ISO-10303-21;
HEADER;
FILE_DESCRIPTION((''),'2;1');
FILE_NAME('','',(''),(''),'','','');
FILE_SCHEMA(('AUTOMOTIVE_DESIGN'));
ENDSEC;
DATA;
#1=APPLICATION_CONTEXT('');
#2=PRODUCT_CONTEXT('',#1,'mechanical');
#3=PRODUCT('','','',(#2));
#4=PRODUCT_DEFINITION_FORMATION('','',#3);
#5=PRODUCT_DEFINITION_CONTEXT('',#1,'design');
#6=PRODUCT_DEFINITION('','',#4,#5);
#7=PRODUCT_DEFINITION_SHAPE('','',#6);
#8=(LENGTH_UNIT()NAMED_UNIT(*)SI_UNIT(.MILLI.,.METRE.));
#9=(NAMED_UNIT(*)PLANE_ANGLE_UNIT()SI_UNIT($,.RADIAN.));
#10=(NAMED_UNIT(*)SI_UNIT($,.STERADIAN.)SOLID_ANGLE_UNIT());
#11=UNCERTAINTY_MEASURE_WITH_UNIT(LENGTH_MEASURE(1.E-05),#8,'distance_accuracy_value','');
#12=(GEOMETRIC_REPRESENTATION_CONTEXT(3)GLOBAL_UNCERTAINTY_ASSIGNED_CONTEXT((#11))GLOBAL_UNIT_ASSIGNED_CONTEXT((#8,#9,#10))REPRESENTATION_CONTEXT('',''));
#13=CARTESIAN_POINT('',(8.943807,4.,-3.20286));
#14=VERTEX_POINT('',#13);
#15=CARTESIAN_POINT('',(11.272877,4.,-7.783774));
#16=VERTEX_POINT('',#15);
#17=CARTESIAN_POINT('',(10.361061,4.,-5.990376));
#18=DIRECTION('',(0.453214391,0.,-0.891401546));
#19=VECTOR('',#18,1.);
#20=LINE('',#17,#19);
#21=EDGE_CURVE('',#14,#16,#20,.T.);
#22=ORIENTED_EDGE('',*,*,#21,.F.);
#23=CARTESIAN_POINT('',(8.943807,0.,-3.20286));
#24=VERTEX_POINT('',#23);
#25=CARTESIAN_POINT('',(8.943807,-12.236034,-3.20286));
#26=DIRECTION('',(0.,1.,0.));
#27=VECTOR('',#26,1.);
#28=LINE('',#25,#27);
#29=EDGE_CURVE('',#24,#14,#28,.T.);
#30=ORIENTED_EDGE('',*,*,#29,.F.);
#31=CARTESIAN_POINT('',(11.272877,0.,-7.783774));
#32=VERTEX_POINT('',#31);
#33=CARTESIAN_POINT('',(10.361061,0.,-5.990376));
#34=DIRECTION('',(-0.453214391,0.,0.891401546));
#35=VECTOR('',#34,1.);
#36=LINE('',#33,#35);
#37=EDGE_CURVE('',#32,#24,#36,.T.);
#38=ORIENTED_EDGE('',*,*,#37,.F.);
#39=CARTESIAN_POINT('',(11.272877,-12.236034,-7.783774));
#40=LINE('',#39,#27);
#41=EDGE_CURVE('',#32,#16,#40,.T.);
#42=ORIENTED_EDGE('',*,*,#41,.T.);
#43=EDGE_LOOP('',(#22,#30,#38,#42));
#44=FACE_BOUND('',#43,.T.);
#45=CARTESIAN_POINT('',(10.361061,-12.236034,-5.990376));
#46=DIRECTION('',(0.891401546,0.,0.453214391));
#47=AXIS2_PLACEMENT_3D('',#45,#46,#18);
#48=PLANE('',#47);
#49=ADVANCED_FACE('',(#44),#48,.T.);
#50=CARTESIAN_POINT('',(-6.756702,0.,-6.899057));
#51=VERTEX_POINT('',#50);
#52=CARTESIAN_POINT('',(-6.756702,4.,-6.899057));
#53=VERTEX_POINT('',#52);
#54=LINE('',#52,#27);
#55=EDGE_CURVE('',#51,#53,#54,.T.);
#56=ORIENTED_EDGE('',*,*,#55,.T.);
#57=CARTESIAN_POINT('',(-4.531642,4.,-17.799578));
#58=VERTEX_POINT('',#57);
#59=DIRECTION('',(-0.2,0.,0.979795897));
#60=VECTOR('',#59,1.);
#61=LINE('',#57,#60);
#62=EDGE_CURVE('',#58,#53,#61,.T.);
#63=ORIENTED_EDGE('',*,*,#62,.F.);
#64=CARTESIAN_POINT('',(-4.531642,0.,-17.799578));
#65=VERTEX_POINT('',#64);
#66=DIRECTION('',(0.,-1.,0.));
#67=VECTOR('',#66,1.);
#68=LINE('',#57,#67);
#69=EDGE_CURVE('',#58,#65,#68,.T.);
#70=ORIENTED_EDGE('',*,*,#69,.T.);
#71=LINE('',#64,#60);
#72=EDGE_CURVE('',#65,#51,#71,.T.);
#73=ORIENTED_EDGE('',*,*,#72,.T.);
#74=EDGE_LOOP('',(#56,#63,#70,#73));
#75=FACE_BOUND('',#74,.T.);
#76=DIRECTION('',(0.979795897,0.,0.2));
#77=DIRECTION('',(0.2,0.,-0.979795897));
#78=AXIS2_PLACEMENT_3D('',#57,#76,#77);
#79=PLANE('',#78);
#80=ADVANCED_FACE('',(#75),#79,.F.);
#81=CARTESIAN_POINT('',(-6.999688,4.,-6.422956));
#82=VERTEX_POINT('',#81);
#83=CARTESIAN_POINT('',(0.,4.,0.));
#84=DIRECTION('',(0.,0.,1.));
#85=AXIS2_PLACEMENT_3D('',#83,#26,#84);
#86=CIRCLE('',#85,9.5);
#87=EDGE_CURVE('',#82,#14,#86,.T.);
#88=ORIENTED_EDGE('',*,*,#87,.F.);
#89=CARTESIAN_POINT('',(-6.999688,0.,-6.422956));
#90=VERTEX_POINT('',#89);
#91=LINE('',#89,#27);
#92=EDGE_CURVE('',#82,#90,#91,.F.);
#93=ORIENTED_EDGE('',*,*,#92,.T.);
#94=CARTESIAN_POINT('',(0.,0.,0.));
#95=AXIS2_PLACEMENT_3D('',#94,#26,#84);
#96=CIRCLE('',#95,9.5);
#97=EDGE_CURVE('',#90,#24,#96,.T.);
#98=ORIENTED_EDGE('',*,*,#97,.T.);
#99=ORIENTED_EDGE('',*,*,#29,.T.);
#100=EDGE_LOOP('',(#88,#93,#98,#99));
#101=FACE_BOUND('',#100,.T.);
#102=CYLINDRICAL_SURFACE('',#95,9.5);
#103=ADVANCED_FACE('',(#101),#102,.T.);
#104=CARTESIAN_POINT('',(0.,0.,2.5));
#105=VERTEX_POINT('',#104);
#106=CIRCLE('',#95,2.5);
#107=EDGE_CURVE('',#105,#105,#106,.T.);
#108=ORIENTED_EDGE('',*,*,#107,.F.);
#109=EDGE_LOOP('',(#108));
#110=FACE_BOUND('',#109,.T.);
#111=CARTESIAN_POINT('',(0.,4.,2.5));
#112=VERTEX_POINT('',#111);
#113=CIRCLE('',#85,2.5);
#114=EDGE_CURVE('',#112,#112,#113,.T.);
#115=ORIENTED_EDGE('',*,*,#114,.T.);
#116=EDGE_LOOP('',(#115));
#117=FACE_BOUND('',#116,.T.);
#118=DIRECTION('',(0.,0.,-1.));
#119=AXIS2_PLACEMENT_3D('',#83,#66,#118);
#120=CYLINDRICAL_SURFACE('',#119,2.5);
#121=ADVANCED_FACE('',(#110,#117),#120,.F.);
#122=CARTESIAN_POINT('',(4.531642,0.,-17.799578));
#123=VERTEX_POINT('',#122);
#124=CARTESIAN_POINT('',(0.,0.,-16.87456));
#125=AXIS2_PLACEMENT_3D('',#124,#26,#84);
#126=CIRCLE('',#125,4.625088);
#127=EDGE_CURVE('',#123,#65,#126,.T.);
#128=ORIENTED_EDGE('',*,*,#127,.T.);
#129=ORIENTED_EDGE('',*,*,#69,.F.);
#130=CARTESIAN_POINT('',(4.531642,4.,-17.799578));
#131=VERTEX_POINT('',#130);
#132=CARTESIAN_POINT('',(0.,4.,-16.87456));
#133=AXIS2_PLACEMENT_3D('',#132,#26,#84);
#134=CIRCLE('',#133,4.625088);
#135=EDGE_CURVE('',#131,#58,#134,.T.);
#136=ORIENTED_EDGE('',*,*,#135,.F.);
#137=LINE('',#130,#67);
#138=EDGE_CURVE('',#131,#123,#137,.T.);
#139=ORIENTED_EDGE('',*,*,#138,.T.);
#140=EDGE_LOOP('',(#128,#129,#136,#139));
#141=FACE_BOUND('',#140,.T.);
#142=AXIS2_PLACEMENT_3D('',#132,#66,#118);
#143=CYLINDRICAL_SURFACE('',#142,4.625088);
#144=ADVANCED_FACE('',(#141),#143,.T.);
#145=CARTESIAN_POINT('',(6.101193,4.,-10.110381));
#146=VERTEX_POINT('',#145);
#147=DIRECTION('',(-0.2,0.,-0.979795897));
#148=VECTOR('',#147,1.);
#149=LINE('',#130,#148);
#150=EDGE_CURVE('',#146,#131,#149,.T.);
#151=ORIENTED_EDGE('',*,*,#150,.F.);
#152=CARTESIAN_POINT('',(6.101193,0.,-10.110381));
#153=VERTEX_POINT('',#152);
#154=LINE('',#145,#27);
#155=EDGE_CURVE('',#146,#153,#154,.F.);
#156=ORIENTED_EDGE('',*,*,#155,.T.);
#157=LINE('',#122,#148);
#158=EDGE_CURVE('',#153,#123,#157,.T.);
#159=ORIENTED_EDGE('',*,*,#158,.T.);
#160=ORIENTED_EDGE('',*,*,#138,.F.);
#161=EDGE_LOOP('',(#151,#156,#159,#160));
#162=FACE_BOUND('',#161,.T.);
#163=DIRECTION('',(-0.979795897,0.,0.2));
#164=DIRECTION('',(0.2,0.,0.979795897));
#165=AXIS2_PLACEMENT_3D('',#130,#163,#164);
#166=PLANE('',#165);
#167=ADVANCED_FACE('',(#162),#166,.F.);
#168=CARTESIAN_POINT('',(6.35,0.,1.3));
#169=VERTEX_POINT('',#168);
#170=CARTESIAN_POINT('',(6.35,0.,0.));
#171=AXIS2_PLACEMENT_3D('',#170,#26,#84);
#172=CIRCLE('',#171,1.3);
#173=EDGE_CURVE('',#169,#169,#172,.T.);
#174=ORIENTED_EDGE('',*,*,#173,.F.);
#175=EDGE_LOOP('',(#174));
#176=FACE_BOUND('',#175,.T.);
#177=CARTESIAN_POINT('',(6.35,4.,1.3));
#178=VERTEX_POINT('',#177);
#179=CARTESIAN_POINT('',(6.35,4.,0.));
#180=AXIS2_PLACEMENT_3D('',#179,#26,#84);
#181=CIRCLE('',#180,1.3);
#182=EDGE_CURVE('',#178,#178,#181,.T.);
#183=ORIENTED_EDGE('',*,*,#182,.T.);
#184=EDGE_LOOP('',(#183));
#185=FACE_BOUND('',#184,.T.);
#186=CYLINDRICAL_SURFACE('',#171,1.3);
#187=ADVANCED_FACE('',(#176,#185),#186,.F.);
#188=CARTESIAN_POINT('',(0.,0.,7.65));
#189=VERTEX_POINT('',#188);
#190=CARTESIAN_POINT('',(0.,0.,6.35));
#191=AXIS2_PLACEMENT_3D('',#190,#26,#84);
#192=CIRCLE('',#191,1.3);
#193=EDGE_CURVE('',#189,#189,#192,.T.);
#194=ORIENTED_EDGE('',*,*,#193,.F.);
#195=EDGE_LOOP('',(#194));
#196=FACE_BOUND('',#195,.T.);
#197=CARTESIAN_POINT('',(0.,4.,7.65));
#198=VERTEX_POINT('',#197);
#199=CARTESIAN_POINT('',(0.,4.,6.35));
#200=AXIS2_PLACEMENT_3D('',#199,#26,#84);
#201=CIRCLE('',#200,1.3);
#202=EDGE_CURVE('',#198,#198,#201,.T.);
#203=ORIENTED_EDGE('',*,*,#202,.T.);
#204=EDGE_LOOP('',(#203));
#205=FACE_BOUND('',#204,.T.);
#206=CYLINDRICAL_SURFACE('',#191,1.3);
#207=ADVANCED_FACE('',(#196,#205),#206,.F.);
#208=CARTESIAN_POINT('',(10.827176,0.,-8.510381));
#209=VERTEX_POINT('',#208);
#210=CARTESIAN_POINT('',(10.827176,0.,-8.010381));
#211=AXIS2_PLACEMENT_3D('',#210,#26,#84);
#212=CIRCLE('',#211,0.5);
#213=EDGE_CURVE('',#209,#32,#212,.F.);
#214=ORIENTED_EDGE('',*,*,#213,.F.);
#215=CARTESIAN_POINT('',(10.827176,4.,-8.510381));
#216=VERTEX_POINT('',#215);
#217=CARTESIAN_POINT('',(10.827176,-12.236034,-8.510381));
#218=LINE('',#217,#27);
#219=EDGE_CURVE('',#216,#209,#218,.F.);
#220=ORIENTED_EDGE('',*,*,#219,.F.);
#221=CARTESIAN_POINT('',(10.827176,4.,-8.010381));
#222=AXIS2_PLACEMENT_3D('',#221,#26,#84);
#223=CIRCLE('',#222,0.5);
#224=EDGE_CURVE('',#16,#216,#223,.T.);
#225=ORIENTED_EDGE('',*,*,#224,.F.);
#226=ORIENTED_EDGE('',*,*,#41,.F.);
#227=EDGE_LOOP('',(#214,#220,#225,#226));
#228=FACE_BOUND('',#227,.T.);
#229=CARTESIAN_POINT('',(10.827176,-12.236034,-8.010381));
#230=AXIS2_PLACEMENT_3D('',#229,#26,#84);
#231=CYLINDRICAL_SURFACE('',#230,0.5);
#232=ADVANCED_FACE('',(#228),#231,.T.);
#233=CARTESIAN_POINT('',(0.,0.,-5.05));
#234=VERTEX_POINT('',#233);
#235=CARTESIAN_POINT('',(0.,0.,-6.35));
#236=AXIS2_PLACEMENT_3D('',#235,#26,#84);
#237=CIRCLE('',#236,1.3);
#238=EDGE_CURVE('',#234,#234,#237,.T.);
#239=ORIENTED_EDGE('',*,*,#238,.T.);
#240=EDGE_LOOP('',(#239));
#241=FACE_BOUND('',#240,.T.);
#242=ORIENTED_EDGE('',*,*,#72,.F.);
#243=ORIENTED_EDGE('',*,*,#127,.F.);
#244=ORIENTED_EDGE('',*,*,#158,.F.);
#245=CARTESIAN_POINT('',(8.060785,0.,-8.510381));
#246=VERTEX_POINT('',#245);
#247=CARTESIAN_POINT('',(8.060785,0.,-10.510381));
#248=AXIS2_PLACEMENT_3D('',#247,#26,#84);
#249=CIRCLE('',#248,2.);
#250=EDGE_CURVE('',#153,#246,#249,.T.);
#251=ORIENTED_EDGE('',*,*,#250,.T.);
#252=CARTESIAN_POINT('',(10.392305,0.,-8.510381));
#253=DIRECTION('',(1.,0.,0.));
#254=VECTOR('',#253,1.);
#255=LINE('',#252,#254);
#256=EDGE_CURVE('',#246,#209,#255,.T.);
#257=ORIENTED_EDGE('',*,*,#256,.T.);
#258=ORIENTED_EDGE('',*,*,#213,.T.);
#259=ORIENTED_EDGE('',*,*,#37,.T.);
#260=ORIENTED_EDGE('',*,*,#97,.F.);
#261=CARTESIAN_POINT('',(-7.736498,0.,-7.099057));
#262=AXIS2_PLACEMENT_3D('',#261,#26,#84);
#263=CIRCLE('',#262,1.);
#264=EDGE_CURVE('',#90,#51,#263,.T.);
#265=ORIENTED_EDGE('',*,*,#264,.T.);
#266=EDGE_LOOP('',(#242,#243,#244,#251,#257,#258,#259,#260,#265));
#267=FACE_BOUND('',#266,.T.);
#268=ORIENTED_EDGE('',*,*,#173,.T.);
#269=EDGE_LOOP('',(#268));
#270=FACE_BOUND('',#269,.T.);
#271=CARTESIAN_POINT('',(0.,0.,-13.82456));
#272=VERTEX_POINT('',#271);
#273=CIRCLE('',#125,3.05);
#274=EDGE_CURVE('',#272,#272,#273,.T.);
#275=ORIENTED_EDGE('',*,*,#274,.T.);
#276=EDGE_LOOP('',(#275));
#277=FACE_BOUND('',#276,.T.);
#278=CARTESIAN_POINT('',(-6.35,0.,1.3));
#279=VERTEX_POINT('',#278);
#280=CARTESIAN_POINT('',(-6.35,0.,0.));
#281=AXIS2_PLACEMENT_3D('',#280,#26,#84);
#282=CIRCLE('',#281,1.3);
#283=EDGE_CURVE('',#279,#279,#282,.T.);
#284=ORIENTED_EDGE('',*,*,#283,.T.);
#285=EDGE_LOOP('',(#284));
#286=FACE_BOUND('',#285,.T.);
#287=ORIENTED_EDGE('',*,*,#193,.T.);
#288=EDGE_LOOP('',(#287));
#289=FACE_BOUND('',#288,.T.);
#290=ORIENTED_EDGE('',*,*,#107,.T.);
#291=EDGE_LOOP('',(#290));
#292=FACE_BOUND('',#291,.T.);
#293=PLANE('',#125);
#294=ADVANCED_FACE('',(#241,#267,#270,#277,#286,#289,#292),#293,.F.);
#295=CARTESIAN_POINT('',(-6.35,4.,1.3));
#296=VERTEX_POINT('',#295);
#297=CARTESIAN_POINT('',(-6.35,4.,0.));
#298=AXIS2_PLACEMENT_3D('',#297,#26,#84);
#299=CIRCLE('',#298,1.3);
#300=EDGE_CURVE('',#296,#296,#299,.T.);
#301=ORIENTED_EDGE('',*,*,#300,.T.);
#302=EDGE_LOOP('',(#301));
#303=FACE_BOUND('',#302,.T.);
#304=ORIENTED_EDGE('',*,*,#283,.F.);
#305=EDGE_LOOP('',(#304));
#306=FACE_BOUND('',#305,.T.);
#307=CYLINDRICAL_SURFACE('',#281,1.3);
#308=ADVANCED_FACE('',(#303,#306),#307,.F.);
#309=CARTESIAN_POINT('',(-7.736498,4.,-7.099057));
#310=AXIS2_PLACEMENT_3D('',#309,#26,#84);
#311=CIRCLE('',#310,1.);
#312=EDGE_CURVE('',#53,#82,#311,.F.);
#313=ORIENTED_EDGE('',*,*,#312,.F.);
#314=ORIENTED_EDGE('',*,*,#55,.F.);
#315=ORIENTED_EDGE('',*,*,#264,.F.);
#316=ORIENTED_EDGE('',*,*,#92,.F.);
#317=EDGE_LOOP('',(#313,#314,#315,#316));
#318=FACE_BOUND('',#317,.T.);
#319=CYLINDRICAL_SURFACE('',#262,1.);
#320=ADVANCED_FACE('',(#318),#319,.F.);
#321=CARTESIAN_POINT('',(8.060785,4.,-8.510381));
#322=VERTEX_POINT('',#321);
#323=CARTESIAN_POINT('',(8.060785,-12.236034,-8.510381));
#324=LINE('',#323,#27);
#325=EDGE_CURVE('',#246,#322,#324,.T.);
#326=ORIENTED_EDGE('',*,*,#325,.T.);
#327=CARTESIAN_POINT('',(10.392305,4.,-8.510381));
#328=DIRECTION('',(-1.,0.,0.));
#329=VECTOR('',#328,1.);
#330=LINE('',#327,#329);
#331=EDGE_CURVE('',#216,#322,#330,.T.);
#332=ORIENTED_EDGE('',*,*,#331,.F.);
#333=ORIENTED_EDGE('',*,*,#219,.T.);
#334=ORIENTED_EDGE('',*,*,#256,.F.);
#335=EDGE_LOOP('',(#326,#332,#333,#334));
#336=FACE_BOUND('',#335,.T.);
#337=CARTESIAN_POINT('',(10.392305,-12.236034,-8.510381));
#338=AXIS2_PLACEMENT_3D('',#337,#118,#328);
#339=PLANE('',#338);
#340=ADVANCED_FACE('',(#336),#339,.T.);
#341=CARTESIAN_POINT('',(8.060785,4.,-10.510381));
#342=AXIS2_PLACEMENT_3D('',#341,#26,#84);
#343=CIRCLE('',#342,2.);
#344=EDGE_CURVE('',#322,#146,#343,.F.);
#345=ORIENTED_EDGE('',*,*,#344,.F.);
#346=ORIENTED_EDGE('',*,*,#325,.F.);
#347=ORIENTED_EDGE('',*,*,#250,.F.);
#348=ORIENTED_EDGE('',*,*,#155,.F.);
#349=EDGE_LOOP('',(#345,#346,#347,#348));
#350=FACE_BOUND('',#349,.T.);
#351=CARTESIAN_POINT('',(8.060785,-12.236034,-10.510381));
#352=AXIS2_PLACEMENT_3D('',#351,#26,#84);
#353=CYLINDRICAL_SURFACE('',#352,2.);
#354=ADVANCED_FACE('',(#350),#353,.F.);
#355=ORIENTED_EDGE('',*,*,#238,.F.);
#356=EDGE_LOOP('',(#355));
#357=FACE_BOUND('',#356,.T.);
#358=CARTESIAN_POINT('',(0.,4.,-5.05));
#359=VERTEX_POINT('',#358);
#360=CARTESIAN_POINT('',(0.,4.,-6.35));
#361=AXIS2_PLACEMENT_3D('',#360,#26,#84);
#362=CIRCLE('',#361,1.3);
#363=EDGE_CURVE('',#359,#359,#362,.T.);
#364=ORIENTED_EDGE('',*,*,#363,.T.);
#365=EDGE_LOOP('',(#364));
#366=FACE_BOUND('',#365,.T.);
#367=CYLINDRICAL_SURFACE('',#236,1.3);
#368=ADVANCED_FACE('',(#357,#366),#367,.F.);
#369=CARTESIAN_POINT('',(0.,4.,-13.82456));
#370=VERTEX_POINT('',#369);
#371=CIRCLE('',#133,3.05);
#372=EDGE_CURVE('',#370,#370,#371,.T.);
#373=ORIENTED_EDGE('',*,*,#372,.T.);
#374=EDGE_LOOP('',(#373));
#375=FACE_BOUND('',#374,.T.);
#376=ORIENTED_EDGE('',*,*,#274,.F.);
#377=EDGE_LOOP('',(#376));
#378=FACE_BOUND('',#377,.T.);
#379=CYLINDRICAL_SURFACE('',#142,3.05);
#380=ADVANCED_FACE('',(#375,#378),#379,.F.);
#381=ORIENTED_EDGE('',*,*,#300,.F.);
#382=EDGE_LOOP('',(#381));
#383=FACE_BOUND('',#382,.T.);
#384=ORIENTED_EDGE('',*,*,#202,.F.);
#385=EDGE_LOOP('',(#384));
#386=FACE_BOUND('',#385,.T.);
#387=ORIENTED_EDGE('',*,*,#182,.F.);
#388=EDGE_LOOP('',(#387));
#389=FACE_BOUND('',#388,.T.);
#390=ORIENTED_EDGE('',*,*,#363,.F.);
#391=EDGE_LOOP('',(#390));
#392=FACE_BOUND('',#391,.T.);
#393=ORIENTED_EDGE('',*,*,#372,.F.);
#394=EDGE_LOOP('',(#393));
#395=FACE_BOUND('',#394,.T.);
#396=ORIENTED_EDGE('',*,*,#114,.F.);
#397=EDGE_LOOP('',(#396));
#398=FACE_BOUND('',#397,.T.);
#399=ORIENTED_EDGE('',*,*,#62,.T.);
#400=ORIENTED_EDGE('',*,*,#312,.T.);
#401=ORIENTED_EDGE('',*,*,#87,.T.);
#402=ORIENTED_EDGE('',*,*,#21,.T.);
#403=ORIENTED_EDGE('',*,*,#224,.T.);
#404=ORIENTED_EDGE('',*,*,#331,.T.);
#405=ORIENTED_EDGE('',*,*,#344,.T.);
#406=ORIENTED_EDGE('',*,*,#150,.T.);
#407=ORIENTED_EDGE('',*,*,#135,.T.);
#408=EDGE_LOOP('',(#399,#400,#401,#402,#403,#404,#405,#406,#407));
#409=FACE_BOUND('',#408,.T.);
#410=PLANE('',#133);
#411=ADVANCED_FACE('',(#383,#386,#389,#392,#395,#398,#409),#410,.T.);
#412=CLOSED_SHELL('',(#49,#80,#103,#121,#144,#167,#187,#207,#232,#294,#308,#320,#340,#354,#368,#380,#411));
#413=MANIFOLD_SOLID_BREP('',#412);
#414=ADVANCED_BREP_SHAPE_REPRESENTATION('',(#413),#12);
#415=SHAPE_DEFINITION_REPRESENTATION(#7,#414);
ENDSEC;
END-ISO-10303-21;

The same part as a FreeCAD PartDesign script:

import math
import FreeCAD as App
import Part
import Sketcher

V = App.Vector
Q = App.Units.Quantity


def edges_at(feature, points):
    """Names of the edges that pass closest to the given points."""
    edges = feature.Shape.Edges
    near = lambda p: min(range(len(edges)), key=lambda i: edges[i].distToShape(Part.Vertex(*p))[0])
    return sorted({f"Edge{near(p) + 1}" for p in points})

doc = App.newDocument("Part")
body = doc.addObject("PartDesign::Body", "Body")

# Sketch on XZ plane
sketch1 = body.newObject("Sketcher::SketchObject", "Sketch")
sketch1.AttachmentSupport = (doc.getObject("XZ_Plane"), [""])
sketch1.MapMode = "FlatFace"
sketch1.addGeometry([
    Part.LineSegment(V(-4.531642, -17.799578, 0), V(-7.838367, -1.6, 0)),  # 0
    Part.ArcOfCircle(Part.Circle(V(0, 0, 0), V(0, 0, 1), 8), math.radians(-11.536959), math.radians(191.536959)),  # 1
    Part.LineSegment(V(7.838367, -1.6, 0), V(4.531642, -17.799578, 0)),  # 2
    Part.ArcOfCircle(Part.Circle(V(0, -16.87456, 0), V(0, 0, 1), 4.625088), math.radians(-168.463041), math.radians(-11.536959)),  # 3
    Part.Circle(V(0, 0, 0), V(0, 0, 1), 2.5),  # 4
    Part.Circle(V(0, -16.87456, 0), V(0, 0, 1), 3.05),  # 5
], False)
sketch1.addConstraint([
    Sketcher.Constraint("Tangent", 0, 2, 1, 2),
    Sketcher.Constraint("Tangent", 1, 1, 2, 1),
    Sketcher.Constraint("Tangent", 2, 2, 3, 2),
    Sketcher.Constraint("Tangent", 3, 1, 0, 1),
    Sketcher.Constraint("Coincident", 1, 3, -1, 1),
    Sketcher.Constraint("Coincident", 4, 3, -1, 1),
    Sketcher.Constraint("Coincident", 5, 3, 3, 3),
    Sketcher.Constraint("PointOnObject", 3, 3, -2),
    Sketcher.Constraint("Diameter", 4, 5.0),
    Sketcher.Constraint("Radius", 1, 8.0),
    Sketcher.Constraint("Diameter", 5, 6.1),
    Sketcher.Constraint("DistanceY", 0, 2, -1, 1, 1.6),
    Sketcher.Constraint("Radius", 3, 4.625088),
])
pad1 = body.newObject("PartDesign::Pad", "Pad")
pad1.Profile = sketch1
pad1.Length = 4
pad1.Reversed = True

# Sketch on XZ plane
sketch2 = body.newObject("Sketcher::SketchObject", "Sketch001")
sketch2.AttachmentSupport = (doc.getObject("XZ_Plane"), [""])
sketch2.MapMode = "FlatFace"
sketch2.AttachmentOffset = App.Placement(V(0, 0, -4), App.Rotation())
sketch2.addGeometry([
    Part.Circle(V(0, -6.35, 0), V(0, 0, 1), 1.3),
    Part.Circle(V(6.35, 0, 0), V(0, 0, 1), 1.3),
    Part.Circle(V(0, 6.35, 0), V(0, 0, 1), 1.3),
    Part.Circle(V(-6.35, 0, 0), V(0, 0, 1), 1.3),
], False)
sketch2.addConstraint([
    Sketcher.Constraint("Equal", 0, 1),
    Sketcher.Constraint("Equal", 1, 2),
    Sketcher.Constraint("Equal", 2, 3),
    Sketcher.Constraint("Symmetric", 0, 3, 2, 3, -1, 1),
    Sketcher.Constraint("Symmetric", 1, 3, 3, 3, -1, 1),
    Sketcher.Constraint("PointOnObject", 0, 3, -2),
    Sketcher.Constraint("PointOnObject", 1, 3, -1),
    Sketcher.Constraint("Diameter", 0, 2.6),
    Sketcher.Constraint("DistanceY", 0, 3, 2, 3, 12.7),
    Sketcher.Constraint("DistanceX", 3, 3, 1, 3, 12.7),
])
pocket1 = body.newObject("PartDesign::Pocket", "Pocket")
pocket1.Profile = sketch2
pocket1.Length = 4
pocket1.Reversed = True

# Sketch on XZ plane
sketch3 = body.newObject("Sketcher::SketchObject", "Sketch002")
sketch3.AttachmentSupport = (doc.getObject("XZ_Plane"), [""])
sketch3.MapMode = "FlatFace"
sketch3.AttachmentOffset = App.Placement(V(0, 0, -4), App.Rotation())
sketch3.addGeometry([
    Part.LineSegment(V(-7.838367, -1.6, 0), V(-6.813672, -6.61996, 0)),
    Part.ArcOfCircle(Part.Circle(V(0, 0, 0), V(0, 0, 1), 9.5), math.radians(-44.173857), math.radians(224.173857)),
    Part.LineSegment(V(6.813672, -6.61996, 0), V(7.838367, -1.6, 0)),
    Part.ArcOfCircle(Part.Circle(V(0, 0, 0), V(0, 0, 1), 8), math.radians(-11.536959), math.radians(191.536959)),
], False)
sketch3.addConstraint([
    Sketcher.Constraint("Coincident", 0, 2, 1, 2),
    Sketcher.Constraint("Coincident", 1, 1, 2, 1),
    Sketcher.Constraint("Tangent", 2, 2, 3, 1),
    Sketcher.Constraint("Tangent", 3, 2, 0, 1),
    Sketcher.Constraint("Coincident", 1, 3, -1, 1),
    Sketcher.Constraint("Coincident", 3, 3, -1, 1),
    Sketcher.Constraint("Horizontal", 0, 2, 1, 1),
    Sketcher.Constraint("Radius", 3, 8.0),
    Sketcher.Constraint("Radius", 1, 9.5),
    Sketcher.Constraint("DistanceY", 2, 2, -1, 1, 1.6),
])
pad2 = body.newObject("PartDesign::Pad", "Pad001")
pad2.Profile = sketch3
pad2.Length = 4

# Sketch on XZ plane
sketch4 = body.newObject("Sketcher::SketchObject", "Sketch003")
sketch4.AttachmentSupport = (doc.getObject("XZ_Plane"), [""])
sketch4.MapMode = "FlatFace"
sketch4.AttachmentOffset = App.Placement(V(0, 0, -4), App.Rotation())
sketch4.addGeometry([
    Part.LineSegment(V(6.427791, -8.510381, 0), V(6.813672, -6.61996, 0)),  # 0
    Part.LineSegment(V(6.813672, -6.61996, 0), V(1.793072, -1.742095, 0)),  # 1
    Part.ArcOfCircle(Part.Circle(V(0, 0, 0), V(0, 0, 1), 2.5), math.radians(-44.173857), math.radians(-30)),  # 2
    Part.LineSegment(V(2.165064, -1.25, 0), V(5.073143, -2.928981, 0)),  # 3
    Part.LineSegment(V(5.073143, -2.928981, 0), V(8.943807, -3.20286, 0)),  # 4
    Part.LineSegment(V(8.943807, -3.20286, 0), V(10.361061, -5.990376, 0)),  # 5
    Part.LineSegment(V(10.361061, -5.990376, 0), V(11.642305, -8.510381, 0)),  # 6
    Part.LineSegment(V(11.642305, -8.510381, 0), V(6.427791, -8.510381, 0)),  # 7
], False)
sketch4.addConstraint([
    Sketcher.Constraint("Coincident", 0, 2, 1, 1),
    Sketcher.Constraint("Coincident", 1, 2, 2, 1),
    Sketcher.Constraint("Coincident", 2, 2, 3, 1),
    Sketcher.Constraint("Coincident", 3, 2, 4, 1),
    Sketcher.Constraint("Coincident", 4, 2, 5, 1),
    Sketcher.Constraint("Coincident", 5, 2, 6, 1),
    Sketcher.Constraint("Coincident", 6, 2, 7, 1),
    Sketcher.Constraint("Coincident", 7, 2, 0, 1),
    Sketcher.Constraint("Horizontal", 7),
    Sketcher.Constraint("Coincident", 2, 3, -1, 1),
    Sketcher.Constraint("Parallel", 5, 6),
    Sketcher.Constraint("Radius", 2, 2.5),
    Sketcher.Constraint("Angle", 3, Q("-30 deg")),
    Sketcher.Constraint("Distance", 1, 7.0),
    Sketcher.Constraint("DistanceY", 2, 2, -1, 1, 1.25),
    Sketcher.Constraint("DistanceX", 1, 2, 0, 2, 5.0206),
    Sketcher.Constraint("DistanceY", 0, 2, 4, 2, 3.4171),
    Sketcher.Constraint("DistanceY", 6, 2, 3, 2, 5.581401),
    Sketcher.Constraint("Distance", 3, 3.357961),
    Sketcher.Constraint("Distance", 4, 3.880341),
    Sketcher.Constraint("DistanceX", 7, 2, 7, 1, 5.214513),
    Sketcher.Constraint("DistanceY", 0, 2, -1, 1, 6.61996),
    Sketcher.Constraint("DistanceX", -1, 1, 5, 2, 10.361061),
    Sketcher.Constraint("DistanceX", -1, 1, 7, 2, 6.427791),
])
pad3 = body.newObject("PartDesign::Pad", "Pad002")
pad3.Profile = sketch4
pad3.Length = 4
doc.recompute()

fillet = body.newObject("PartDesign::Fillet", "Fillet")
fillet.Base = (pad3, edges_at(pad3, [(-6.814, 2, -6.62)]))
fillet.Radius = 1
doc.recompute()

fillet2 = body.newObject("PartDesign::Fillet", "Fillet001")
fillet2.Base = (fillet, edges_at(fillet, [(11.642, 2, -8.51)]))
fillet2.Radius = 0.5
doc.recompute()

fillet3 = body.newObject("PartDesign::Fillet", "Fillet002")
fillet3.Base = (fillet2, edges_at(fillet2, [(6.428, 2, -8.51)]))
fillet3.Radius = 2

doc.recompute()
